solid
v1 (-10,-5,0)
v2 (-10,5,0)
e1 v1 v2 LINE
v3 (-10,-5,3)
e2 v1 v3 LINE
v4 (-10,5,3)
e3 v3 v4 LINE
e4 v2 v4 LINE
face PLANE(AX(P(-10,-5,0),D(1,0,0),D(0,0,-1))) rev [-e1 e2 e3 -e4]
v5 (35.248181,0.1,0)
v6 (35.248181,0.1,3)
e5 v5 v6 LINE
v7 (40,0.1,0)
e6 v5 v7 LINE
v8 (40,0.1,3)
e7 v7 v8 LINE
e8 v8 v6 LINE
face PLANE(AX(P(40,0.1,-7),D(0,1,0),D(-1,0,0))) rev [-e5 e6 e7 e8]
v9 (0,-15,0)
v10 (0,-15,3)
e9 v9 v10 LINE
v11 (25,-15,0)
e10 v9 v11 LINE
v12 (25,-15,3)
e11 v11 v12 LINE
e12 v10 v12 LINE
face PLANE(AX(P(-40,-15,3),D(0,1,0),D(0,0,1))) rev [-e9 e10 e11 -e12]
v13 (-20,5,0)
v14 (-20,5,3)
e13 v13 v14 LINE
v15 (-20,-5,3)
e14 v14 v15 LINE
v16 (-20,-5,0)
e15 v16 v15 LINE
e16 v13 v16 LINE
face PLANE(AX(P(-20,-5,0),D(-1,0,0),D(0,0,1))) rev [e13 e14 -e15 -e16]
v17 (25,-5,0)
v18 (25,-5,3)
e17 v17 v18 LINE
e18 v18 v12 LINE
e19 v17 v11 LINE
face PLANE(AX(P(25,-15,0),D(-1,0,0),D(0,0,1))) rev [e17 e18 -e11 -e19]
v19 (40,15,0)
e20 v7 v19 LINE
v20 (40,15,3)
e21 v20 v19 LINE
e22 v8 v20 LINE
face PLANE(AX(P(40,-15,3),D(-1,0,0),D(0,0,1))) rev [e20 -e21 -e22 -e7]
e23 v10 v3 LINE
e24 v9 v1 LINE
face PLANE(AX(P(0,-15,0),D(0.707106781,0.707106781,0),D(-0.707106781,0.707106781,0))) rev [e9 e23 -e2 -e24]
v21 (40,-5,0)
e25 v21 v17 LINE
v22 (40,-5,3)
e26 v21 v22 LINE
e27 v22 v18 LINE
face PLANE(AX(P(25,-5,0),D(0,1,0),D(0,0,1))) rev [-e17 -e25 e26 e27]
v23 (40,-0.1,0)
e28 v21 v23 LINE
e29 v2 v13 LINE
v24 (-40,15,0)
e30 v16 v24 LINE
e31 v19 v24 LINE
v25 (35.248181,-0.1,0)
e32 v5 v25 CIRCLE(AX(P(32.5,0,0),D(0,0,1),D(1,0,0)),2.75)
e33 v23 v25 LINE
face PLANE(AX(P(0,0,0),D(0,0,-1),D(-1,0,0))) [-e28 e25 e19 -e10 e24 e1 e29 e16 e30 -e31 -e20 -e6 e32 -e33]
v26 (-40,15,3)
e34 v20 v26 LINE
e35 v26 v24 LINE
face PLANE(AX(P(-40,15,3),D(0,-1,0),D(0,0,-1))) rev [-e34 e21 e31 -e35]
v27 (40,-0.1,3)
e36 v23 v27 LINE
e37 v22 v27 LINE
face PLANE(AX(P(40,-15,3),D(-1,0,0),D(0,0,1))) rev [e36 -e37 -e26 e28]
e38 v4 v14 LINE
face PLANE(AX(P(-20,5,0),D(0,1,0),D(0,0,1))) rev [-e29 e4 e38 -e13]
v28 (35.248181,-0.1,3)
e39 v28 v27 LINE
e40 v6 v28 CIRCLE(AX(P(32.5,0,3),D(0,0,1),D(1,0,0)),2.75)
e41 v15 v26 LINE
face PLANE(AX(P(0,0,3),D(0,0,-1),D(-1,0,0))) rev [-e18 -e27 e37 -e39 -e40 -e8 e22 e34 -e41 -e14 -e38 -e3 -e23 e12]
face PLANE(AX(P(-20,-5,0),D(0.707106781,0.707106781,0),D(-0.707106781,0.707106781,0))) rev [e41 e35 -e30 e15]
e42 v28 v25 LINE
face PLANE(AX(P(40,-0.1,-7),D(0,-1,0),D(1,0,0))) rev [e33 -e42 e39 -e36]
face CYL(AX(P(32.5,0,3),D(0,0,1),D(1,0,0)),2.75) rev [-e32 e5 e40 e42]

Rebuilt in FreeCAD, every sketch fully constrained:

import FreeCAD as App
import Part
import Sketcher
Q = App.Units.Quantity

doc = App.newDocument("Part")
body = doc.addObject("PartDesign::Body", "Body")

sketch1 = doc.addObject("Sketcher::SketchObject", "Sketch")
body.addObject(sketch1)
sketch1.AttachmentSupport = (doc.XY_Plane, [""])
sketch1.MapMode = "FlatFace"
sketch1.addGeometry([
    Part.LineSegment(App.Vector(-40, 15, 0), App.Vector(-40, -15, 0)),
    Part.LineSegment(App.Vector(-40, -15, 0), App.Vector(40, -15, 0)),
    Part.LineSegment(App.Vector(40, -15, 0), App.Vector(40, 15, 0)),
    Part.LineSegment(App.Vector(40, 15, 0), App.Vector(-40, 15, 0)),
], False)
sketch1.addConstraint([
    Sketcher.Constraint("Coincident", 0, 2, 1, 1),
    Sketcher.Constraint("Coincident", 1, 2, 2, 1),
    Sketcher.Constraint("Coincident", 2, 2, 3, 1),
    Sketcher.Constraint("Coincident", 3, 2, 0, 1),
    Sketcher.Constraint("Vertical", 0),
    Sketcher.Constraint("Horizontal", 1),
    Sketcher.Constraint("Vertical", 2),
    Sketcher.Constraint("Horizontal", 3),
    Sketcher.Constraint("Symmetric", 0, 2, 2, 2, -1, 1),
    Sketcher.Constraint("DistanceX", 1, 1, 1, 2, Q("80 mm")),
    Sketcher.Constraint("DistanceY", 0, 2, 0, 1, Q("30 mm")),
])
pad1 = doc.addObject("PartDesign::Pad", "Pad")
body.addObject(pad1)
pad1.Profile = sketch1
pad1.Length = 3

sketch2 = doc.addObject("Sketcher::SketchObject", "Sketch001")
body.addObject(sketch2)
sketch2.AttachmentSupport = (doc.XY_Plane, [""])
sketch2.MapMode = "FlatFace"
sketch2.AttachmentOffset = App.Placement(App.Vector(0, 0, 3), App.Rotation())
sketch2.addGeometry([
    Part.LineSegment(App.Vector(-40, 15, 0), App.Vector(-40, -15, 0)),
    Part.LineSegment(App.Vector(-40, -15, 0), App.Vector(0, -15, 0)),
    Part.LineSegment(App.Vector(0, -15, 0), App.Vector(-10, -5, 0)),
    Part.LineSegment(App.Vector(-10, -5, 0), App.Vector(-10, 5, 0)),
    Part.LineSegment(App.Vector(-10, 5, 0), App.Vector(-20, 5, 0)),
    Part.LineSegment(App.Vector(-20, 5, 0), App.Vector(-20, -5, 0)),
    Part.LineSegment(App.Vector(-20, -5, 0), App.Vector(-40, 15, 0)),
    Part.LineSegment(App.Vector(25, -5, 0), App.Vector(25, -15, 0)),
    Part.LineSegment(App.Vector(25, -15, 0), App.Vector(40, -15, 0)),
    Part.LineSegment(App.Vector(40, -15, 0), App.Vector(40, -5, 0)),
    Part.LineSegment(App.Vector(40, -5, 0), App.Vector(25, -5, 0)),
], False)
sketch2.addConstraint([
    Sketcher.Constraint("Coincident", 0, 2, 1, 1),
    Sketcher.Constraint("Coincident", 1, 2, 2, 1),
    Sketcher.Constraint("Coincident", 2, 2, 3, 1),
    Sketcher.Constraint("Coincident", 3, 2, 4, 1),
    Sketcher.Constraint("Coincident", 4, 2, 5, 1),
    Sketcher.Constraint("Coincident", 5, 2, 6, 1),
    Sketcher.Constraint("Coincident", 6, 2, 0, 1),
    Sketcher.Constraint("Coincident", 7, 2, 8, 1),
    Sketcher.Constraint("Coincident", 8, 2, 9, 1),
    Sketcher.Constraint("Coincident", 9, 2, 10, 1),
    Sketcher.Constraint("Coincident", 10, 2, 7, 1),
    Sketcher.Constraint("Vertical", 0),
    Sketcher.Constraint("Horizontal", 1),
    Sketcher.Constraint("Vertical", 3),
    Sketcher.Constraint("Horizontal", 4),
    Sketcher.Constraint("Vertical", 5),
    Sketcher.Constraint("Vertical", 7),
    Sketcher.Constraint("Horizontal", 8),
    Sketcher.Constraint("Vertical", 9),
    Sketcher.Constraint("Horizontal", 10),
    Sketcher.Constraint("Symmetric", 6, 2, 8, 2, -1, 1),
    Sketcher.Constraint("PointOnObject", 1, 2, -2),
    Sketcher.Constraint("Parallel", 2, 6),
    Sketcher.Constraint("Horizontal", 2, 2, 5, 2),
    Sketcher.Constraint("Horizontal", 1, 2, 7, 2),
    Sketcher.Constraint("Horizontal", 5, 2, 9, 2),
    Sketcher.Constraint("Equal", 4, 3),
    Sketcher.Constraint("Equal", 5, 7),
    Sketcher.Constraint("DistanceX", 1, 1, 1, 2, Q("40 mm")),
    Sketcher.Constraint("DistanceX", 4, 2, 4, 1, Q("10 mm")),
    Sketcher.Constraint("DistanceX", 8, 1, 8, 2, Q("15 mm")),
    Sketcher.Constraint("DistanceY", 0, 2, 0, 1, Q("30 mm")),
])
pocket1 = doc.addObject("PartDesign::Pocket", "Pocket")
body.addObject(pocket1)
pocket1.Profile = sketch2
pocket1.Type = "ThroughAll"

sketch3 = doc.addObject("Sketcher::SketchObject", "Sketch002")
body.addObject(sketch3)
sketch3.AttachmentSupport = (doc.XY_Plane, [""])
sketch3.MapMode = "FlatFace"
sketch3.AttachmentOffset = App.Placement(App.Vector(0, 0, 3), App.Rotation())
sketch3.addGeometry(Part.Circle(App.Vector(32.5, 0, 0), App.Vector(0, 0, 1), 2.8), False)
sketch3.addConstraint([
    Sketcher.Constraint("PointOnObject", 0, 3, -1),
    Sketcher.Constraint("Diameter", 0, Q("5.5 mm")),
    Sketcher.Constraint("DistanceX", -1, 1, 0, 3, Q("32.5 mm")),
])
doc.recompute()
hole = doc.addObject("PartDesign::Hole", "Hole")
body.addObject(hole)
hole.Profile = sketch3
hole.ThreadType = "None"
hole.Diameter = 5.5
hole.DepthType = "ThroughAll"

sketch4 = doc.addObject("Sketcher::SketchObject", "Sketch003")
body.addObject(sketch4)
sketch4.AttachmentSupport = (doc.XY_Plane, [""])
sketch4.MapMode = "FlatFace"
sketch4.AttachmentOffset = App.Placement(App.Vector(0, 0, 3), App.Rotation())
sketch4.addGeometry([
    Part.LineSegment(App.Vector(32.5, 0.1, 0), App.Vector(32.5, -0.1, 0)),
    Part.LineSegment(App.Vector(32.5, -0.1, 0), App.Vector(40, -0.1, 0)),
    Part.LineSegment(App.Vector(40, -0.1, 0), App.Vector(40, 0.1, 0)),
    Part.LineSegment(App.Vector(40, 0.1, 0), App.Vector(32.5, 0.1, 0)),
], False)
sketch4.addConstraint([
    Sketcher.Constraint("Coincident", 0, 2, 1, 1),
    Sketcher.Constraint("Coincident", 1, 2, 2, 1),
    Sketcher.Constraint("Coincident", 2, 2, 3, 1),
    Sketcher.Constraint("Coincident", 3, 2, 0, 1),
    Sketcher.Constraint("Vertical", 0),
    Sketcher.Constraint("Horizontal", 1),
    Sketcher.Constraint("Vertical", 2),
    Sketcher.Constraint("Horizontal", 3),
    Sketcher.Constraint("DistanceX", 1, 1, 1, 2, Q("7.5 mm")),
    Sketcher.Constraint("DistanceY", 0, 2, 0, 1, Q("0.2 mm")),
    Sketcher.Constraint("DistanceX", -1, 1, 1, 2, Q("40 mm")),
    Sketcher.Constraint("DistanceY", 0, 2, -1, 1, Q("0.1 mm")),
])
pocket2 = doc.addObject("PartDesign::Pocket", "Pocket001")
body.addObject(pocket2)
pocket2.Profile = sketch4
pocket2.Length = 10

doc.recompute()
